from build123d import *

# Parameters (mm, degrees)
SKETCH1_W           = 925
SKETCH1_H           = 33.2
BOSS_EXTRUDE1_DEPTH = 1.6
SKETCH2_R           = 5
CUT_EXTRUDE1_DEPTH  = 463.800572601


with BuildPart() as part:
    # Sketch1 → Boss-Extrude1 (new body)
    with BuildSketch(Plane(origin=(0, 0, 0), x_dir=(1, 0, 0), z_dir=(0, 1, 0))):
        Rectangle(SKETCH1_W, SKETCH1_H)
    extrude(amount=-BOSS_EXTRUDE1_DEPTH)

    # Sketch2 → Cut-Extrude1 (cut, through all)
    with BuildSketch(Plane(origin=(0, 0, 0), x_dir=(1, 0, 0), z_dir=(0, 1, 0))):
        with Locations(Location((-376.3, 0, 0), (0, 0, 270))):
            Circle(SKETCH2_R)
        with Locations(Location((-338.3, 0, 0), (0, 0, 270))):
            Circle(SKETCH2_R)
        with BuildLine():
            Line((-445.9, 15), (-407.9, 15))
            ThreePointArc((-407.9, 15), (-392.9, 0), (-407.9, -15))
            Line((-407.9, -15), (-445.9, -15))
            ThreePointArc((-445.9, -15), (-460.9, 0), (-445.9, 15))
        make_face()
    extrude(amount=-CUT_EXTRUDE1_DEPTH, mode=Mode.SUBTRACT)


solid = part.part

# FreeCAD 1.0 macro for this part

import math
import FreeCAD as App
import Part
import Sketcher


def add_polygon(sketch, points):
    """Adds a closed chain of lines whose ends are joined by coincident constraints."""
    first, n = sketch.GeometryCount, len(points)
    for a, b in zip(points, points[1:] + points[:1]):
        sketch.addGeometry(Part.LineSegment(App.Vector(*a, 0), App.Vector(*b, 0)), False)
    for i in range(n):
        sketch.addConstraint(Sketcher.Constraint("Coincident", first + i, 2, first + (i + 1) % n, 1))

doc = App.newDocument("Part")
body = doc.addObject("PartDesign::Body", "Body")

sketch1 = doc.addObject("Sketcher::SketchObject", "Sketch")
body.addObject(sketch1)
sketch1.AttachmentSupport = (doc.XZ_Plane, [""])
sketch1.MapMode = "FlatFace"
add_polygon(sketch1, [(-462, -17), (-462, 17), (462, 17), (462, -17)])
sketch1.addConstraint([
    Sketcher.Constraint("Vertical", 0),
    Sketcher.Constraint("Horizontal", 1),
    Sketcher.Constraint("Vertical", 2),
    Sketcher.Constraint("Horizontal", 3),
    Sketcher.Constraint("Symmetric", 0, 2, 2, 2, -1, 1),
    Sketcher.Constraint("DistanceX", 1, 1, 1, 2, 925.0),
    Sketcher.Constraint("DistanceY", 0, 1, 0, 2, 33.2),
])
pad1 = doc.addObject("PartDesign::Pad", "Pad")
body.addObject(pad1)
pad1.Profile = sketch1
pad1.Length = 1.6

sketch2 = doc.addObject("Sketcher::SketchObject", "Sketch001")
body.addObject(sketch2)
sketch2.AttachmentSupport = (doc.XZ_Plane, [""])
sketch2.MapMode = "FlatFace"
sketch2.addGeometry([
    Part.Circle(App.Vector(-376, 0, 0), App.Vector(0, 0, 1), 5),
    Part.Circle(App.Vector(-338, 0, 0), App.Vector(0, 0, 1), 5),
    Part.LineSegment(App.Vector(-408, -15, 0), App.Vector(-446, -15, 0)),
    Part.ArcOfCircle(Part.Circle(App.Vector(-446, 0, 0), App.Vector(0, 0, 1), 15), math.radians(90), math.radians(270)),
    Part.LineSegment(App.Vector(-446, 15, 0), App.Vector(-408, 15, 0)),
    Part.ArcOfCircle(Part.Circle(App.Vector(-408, 0, 0), App.Vector(0, 0, 1), 15), math.radians(-90), math.radians(90)),
], False)
sketch2.addConstraint([
    Sketcher.Constraint("Tangent", 2, 2, 3, 2),
    Sketcher.Constraint("Tangent", 3, 1, 4, 1),
    Sketcher.Constraint("Tangent", 4, 2, 5, 2),
    Sketcher.Constraint("Tangent", 5, 1, 2, 1),
    Sketcher.Constraint("Horizontal", 2),
    Sketcher.Constraint("Horizontal", 4),
    Sketcher.Constraint("Equal", 0, 1),
    Sketcher.Constraint("PointOnObject", 0, 3, -1),
    Sketcher.Constraint("PointOnObject", 1, 3, -1),
    Sketcher.Constraint("PointOnObject", 3, 3, -1),
    Sketcher.Constraint("Diameter", 0, 10.0),
    Sketcher.Constraint("Radius", 3, 15.0),
    Sketcher.Constraint("DistanceX", 2, 2, 2, 1, 38.0),
    Sketcher.Constraint("DistanceX", 0, 3, 1, 3, 38.0),
    Sketcher.Constraint("DistanceX", 0, 3, -1, 1, 376.3),
    Sketcher.Constraint("DistanceX", 3, 3, -1, 1, 445.9),
])
pocket1 = doc.addObject("PartDesign::Pocket", "Pocket")
body.addObject(pocket1)
pocket1.Profile = sketch2
pocket1.Type = "ThroughAll"
pocket1.Reversed = True

doc.recompute()
